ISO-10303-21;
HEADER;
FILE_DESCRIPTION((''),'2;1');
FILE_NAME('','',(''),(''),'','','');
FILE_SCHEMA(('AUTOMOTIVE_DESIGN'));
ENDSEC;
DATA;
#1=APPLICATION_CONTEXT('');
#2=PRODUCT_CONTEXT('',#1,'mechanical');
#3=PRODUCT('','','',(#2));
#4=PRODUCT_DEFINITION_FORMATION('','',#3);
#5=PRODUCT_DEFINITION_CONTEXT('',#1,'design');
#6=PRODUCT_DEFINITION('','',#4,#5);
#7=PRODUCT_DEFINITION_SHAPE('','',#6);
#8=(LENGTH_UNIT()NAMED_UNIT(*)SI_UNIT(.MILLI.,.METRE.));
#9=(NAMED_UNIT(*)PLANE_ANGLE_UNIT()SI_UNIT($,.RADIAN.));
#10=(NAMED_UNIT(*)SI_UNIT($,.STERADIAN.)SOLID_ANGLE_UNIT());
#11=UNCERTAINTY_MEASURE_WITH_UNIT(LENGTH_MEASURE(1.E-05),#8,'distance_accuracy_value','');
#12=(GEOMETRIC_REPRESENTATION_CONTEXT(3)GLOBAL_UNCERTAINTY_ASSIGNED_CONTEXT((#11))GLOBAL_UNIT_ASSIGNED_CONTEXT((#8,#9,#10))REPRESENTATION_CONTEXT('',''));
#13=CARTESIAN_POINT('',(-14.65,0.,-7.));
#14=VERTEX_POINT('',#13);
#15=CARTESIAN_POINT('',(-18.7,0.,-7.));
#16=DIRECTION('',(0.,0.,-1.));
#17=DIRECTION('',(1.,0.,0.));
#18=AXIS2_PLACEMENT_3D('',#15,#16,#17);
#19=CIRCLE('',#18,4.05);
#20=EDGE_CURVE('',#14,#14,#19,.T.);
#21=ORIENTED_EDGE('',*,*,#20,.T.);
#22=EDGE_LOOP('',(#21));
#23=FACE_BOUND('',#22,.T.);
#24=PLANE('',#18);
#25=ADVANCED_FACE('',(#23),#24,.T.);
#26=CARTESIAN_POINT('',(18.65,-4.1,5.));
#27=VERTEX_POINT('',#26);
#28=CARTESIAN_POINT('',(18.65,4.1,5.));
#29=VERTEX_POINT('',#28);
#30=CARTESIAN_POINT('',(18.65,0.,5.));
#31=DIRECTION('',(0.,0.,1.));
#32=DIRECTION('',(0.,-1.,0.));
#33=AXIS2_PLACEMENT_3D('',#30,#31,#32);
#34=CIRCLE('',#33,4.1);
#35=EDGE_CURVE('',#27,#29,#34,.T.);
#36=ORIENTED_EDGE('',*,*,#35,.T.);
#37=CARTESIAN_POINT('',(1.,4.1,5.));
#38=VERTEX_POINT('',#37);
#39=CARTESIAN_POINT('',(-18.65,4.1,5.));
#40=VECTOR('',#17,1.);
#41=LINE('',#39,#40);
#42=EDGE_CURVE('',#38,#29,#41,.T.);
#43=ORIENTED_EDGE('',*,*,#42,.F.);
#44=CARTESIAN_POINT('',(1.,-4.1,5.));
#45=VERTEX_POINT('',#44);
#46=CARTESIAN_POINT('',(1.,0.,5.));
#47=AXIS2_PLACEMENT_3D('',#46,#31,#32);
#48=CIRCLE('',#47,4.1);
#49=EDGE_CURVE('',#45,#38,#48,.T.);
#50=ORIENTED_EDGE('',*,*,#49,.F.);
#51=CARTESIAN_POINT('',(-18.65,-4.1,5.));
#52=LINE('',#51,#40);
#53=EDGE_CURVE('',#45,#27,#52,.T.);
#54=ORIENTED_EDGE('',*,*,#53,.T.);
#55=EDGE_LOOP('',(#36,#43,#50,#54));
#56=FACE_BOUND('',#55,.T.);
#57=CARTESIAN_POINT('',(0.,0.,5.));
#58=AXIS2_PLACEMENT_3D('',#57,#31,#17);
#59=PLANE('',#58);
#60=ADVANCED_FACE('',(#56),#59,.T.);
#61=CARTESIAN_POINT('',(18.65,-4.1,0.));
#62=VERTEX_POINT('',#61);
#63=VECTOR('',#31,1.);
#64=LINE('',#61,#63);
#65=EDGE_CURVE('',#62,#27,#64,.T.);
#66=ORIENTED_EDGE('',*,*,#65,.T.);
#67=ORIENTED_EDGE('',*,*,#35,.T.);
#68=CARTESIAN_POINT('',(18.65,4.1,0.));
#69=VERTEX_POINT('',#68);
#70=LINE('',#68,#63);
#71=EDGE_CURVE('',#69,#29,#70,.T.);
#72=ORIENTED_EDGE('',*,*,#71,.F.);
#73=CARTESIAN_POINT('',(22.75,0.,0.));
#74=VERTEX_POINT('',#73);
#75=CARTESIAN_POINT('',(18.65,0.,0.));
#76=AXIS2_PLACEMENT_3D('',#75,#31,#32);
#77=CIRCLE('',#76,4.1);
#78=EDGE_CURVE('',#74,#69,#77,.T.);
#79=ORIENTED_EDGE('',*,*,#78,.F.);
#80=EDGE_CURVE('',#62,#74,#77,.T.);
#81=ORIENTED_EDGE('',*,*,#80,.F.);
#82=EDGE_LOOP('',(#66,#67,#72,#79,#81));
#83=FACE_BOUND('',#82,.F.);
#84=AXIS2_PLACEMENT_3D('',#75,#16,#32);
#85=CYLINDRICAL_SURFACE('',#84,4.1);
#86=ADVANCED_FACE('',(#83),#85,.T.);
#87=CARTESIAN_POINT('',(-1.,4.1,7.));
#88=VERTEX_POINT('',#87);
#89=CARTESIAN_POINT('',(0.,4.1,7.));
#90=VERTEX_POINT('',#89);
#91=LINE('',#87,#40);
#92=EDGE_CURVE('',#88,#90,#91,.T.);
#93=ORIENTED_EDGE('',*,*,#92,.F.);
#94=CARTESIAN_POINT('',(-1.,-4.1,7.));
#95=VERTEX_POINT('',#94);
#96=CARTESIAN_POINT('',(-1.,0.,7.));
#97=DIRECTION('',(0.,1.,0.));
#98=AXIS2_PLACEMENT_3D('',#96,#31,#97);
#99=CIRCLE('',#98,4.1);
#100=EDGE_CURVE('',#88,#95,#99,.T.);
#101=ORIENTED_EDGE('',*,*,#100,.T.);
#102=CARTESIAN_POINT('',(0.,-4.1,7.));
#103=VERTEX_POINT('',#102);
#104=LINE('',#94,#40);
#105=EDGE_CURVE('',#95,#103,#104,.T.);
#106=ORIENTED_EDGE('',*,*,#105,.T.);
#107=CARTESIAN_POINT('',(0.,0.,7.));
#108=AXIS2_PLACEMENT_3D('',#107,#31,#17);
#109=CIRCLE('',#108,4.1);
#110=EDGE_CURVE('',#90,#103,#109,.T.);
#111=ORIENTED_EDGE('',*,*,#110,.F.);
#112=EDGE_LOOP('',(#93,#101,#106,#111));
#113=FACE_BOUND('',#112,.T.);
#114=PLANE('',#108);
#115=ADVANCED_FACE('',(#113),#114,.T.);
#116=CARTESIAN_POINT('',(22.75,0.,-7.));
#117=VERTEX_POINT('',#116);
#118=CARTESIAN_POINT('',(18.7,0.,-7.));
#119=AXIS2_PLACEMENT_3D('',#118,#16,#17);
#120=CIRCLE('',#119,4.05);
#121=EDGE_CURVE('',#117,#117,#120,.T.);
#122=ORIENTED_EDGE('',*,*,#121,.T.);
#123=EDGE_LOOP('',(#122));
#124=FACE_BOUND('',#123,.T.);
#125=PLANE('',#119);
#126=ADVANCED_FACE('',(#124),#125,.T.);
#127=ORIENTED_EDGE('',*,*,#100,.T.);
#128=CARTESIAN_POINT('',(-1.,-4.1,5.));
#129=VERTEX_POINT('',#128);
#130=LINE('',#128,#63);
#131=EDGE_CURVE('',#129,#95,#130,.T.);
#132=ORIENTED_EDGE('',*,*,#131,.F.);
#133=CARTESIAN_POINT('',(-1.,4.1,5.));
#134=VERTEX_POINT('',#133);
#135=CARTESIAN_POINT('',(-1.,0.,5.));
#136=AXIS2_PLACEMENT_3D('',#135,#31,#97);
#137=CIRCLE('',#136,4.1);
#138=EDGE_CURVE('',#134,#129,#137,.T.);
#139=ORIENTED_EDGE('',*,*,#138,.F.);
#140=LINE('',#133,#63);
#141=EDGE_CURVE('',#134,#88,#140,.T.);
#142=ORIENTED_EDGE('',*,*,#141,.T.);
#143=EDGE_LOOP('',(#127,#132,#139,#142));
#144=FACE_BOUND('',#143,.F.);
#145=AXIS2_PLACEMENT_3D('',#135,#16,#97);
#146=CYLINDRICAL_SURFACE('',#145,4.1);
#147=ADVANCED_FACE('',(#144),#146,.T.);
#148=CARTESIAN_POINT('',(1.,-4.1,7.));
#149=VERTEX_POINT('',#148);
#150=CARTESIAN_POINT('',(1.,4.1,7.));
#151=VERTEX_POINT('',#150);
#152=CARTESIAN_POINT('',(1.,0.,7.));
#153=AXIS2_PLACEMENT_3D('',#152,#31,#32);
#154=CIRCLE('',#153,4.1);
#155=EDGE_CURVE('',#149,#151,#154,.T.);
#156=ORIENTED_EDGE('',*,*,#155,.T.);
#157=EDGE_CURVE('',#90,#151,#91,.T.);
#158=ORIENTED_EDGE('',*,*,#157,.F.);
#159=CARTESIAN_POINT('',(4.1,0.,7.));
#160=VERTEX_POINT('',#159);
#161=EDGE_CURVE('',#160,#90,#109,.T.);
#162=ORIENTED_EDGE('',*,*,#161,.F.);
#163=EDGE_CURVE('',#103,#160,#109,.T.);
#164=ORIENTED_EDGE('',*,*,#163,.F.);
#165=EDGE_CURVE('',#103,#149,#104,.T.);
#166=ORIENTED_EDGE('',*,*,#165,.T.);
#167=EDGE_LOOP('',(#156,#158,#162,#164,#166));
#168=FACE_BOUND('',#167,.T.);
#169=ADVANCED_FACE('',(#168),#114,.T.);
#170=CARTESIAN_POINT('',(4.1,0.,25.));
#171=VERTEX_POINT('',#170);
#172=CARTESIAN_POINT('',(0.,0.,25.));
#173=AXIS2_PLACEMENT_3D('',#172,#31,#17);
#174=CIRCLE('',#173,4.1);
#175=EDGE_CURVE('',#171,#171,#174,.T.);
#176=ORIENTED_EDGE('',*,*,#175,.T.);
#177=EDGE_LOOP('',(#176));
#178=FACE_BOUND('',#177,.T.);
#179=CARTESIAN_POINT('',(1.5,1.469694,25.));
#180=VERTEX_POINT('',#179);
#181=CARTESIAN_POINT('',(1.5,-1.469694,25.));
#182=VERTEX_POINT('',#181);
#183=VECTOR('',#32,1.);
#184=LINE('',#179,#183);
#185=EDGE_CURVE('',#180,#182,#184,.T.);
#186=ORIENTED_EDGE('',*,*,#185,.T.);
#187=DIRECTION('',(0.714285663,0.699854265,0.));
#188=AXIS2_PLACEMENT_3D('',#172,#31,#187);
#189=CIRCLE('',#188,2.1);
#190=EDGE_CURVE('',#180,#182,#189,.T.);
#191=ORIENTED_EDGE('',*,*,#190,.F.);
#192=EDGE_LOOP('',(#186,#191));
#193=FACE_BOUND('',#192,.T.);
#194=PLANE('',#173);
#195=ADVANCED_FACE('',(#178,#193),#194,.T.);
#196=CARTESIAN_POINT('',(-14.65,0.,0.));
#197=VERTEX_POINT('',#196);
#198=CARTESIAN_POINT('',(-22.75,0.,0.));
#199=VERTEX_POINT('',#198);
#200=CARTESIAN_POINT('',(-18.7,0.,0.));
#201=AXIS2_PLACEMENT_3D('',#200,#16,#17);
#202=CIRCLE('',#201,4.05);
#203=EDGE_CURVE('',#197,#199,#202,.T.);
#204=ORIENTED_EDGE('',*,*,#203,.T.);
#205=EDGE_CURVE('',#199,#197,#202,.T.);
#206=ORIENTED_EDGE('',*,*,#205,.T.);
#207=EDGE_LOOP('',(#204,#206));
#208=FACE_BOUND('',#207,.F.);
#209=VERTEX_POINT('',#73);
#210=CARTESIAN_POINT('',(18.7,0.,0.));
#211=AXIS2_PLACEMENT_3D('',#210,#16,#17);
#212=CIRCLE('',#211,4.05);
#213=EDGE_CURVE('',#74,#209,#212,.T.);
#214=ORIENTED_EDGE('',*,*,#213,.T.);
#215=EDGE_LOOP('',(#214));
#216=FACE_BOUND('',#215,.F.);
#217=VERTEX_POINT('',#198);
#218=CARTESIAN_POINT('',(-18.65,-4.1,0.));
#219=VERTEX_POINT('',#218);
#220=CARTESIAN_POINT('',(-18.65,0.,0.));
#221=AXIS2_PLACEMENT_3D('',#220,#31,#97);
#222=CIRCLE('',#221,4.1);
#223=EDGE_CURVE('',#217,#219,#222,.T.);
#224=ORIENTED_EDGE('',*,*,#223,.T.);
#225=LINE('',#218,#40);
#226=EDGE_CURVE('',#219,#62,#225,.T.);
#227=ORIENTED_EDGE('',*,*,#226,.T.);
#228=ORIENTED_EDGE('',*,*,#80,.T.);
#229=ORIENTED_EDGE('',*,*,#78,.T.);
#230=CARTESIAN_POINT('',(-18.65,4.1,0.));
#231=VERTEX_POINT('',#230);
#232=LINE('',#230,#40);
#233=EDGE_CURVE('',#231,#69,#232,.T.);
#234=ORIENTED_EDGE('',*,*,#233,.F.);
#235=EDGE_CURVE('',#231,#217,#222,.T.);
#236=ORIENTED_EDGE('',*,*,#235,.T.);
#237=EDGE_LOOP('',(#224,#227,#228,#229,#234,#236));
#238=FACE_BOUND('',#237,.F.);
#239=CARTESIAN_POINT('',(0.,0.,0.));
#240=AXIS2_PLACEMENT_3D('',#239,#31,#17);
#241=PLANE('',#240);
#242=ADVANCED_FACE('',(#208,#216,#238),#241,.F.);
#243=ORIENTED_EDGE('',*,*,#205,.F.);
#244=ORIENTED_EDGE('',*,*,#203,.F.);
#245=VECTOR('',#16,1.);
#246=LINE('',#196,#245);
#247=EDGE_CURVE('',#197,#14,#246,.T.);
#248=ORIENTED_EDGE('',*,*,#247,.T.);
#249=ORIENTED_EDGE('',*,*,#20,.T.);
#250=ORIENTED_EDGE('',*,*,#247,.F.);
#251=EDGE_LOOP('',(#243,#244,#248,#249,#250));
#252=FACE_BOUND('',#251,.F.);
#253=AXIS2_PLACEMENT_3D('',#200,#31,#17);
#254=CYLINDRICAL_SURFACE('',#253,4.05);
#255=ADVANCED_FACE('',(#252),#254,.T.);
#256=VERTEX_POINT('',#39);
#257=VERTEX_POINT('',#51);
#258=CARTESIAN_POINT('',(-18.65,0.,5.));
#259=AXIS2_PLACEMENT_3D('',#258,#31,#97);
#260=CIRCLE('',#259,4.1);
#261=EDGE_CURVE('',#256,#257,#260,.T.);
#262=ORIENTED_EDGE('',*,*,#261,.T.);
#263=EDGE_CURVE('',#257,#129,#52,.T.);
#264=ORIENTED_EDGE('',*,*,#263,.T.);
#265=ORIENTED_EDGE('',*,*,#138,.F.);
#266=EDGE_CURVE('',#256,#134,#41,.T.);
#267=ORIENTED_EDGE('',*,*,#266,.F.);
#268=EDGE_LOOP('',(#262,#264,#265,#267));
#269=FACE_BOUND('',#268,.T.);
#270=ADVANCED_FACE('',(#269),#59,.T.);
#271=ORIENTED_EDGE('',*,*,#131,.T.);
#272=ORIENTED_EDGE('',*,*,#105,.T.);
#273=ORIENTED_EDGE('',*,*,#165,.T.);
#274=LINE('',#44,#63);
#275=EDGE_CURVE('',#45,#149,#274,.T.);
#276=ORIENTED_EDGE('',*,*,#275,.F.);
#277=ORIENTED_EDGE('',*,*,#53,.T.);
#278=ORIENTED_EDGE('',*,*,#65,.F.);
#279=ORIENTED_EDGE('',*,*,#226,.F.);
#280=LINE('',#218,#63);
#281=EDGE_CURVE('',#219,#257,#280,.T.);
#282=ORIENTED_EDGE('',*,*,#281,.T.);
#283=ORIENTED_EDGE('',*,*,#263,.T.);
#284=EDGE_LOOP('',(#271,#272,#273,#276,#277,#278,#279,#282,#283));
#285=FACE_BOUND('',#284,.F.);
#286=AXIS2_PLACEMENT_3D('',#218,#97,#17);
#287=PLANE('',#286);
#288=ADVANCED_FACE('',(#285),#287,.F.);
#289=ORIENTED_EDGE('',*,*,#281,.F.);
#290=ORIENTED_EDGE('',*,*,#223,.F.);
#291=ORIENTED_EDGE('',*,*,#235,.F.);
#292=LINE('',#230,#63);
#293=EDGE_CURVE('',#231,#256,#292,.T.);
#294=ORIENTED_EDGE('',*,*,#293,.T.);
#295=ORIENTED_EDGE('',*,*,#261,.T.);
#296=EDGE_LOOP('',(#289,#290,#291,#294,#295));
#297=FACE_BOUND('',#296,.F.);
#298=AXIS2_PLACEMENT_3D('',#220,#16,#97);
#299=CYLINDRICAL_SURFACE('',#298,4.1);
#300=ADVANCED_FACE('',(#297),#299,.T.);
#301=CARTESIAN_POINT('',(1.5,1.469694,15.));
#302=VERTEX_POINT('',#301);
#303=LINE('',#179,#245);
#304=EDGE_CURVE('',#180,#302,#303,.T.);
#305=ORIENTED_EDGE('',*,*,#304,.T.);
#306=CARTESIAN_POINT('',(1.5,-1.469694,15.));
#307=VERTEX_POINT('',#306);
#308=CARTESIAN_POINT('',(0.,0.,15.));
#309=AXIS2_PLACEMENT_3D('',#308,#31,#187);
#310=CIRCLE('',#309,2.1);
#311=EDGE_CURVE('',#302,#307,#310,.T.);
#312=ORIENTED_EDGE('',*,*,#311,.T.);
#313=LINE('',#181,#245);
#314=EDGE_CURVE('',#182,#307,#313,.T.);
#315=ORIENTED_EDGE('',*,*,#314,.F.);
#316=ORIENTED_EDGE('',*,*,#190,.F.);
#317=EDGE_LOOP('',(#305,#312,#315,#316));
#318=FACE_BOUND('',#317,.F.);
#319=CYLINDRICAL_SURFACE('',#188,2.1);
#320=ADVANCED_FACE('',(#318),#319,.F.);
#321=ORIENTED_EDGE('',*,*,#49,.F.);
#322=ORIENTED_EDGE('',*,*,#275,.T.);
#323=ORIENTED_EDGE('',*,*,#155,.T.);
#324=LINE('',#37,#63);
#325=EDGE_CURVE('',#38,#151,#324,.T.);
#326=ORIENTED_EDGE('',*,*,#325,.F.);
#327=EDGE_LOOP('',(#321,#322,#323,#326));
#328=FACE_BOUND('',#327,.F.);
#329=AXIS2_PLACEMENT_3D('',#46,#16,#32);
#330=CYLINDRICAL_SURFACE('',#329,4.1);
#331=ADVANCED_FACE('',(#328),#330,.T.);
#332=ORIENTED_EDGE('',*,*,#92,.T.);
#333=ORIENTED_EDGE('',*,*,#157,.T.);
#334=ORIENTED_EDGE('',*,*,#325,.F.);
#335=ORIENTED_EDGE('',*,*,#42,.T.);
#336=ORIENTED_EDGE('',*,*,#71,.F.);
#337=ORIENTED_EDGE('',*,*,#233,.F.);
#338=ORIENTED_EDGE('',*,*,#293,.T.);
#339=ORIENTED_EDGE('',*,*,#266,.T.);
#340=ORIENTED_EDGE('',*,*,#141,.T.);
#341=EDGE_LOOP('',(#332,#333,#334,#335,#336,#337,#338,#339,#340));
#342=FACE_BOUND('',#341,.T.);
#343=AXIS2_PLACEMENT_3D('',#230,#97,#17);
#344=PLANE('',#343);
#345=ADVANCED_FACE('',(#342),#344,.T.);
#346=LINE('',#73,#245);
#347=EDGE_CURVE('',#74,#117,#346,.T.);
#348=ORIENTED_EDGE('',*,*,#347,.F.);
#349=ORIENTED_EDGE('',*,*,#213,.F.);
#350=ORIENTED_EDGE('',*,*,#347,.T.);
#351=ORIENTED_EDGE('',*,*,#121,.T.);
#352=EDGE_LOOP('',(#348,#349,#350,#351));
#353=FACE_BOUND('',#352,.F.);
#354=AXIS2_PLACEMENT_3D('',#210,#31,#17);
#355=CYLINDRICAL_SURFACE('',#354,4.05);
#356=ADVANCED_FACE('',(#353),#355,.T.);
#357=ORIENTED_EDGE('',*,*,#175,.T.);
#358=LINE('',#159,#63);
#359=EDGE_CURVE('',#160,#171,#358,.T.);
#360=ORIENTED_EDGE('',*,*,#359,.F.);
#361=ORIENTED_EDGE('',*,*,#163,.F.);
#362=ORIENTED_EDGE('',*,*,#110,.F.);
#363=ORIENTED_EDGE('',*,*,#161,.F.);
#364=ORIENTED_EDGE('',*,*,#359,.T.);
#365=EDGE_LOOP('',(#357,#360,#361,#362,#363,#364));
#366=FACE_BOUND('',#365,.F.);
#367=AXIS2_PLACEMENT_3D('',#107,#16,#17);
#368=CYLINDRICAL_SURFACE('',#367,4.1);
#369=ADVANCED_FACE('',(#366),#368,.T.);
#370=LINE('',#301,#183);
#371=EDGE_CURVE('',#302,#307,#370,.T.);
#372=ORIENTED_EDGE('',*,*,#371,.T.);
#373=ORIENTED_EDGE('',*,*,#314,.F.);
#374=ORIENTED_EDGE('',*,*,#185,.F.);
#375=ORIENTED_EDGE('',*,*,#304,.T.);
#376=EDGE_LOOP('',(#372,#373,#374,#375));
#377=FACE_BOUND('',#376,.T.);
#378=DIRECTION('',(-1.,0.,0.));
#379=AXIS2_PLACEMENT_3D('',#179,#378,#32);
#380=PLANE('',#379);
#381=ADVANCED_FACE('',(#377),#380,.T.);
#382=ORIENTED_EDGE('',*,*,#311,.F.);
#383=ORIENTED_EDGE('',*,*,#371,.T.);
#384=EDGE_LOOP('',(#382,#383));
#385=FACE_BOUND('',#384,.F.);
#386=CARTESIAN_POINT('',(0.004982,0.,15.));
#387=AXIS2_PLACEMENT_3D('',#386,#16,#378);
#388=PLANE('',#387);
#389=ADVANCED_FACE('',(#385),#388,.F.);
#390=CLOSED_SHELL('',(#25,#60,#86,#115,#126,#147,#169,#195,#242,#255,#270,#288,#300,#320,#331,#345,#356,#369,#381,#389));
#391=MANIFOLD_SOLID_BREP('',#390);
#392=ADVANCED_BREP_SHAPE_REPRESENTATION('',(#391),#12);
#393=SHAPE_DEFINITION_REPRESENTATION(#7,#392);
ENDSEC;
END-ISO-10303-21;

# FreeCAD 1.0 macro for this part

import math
import FreeCAD as App
import Part
import Sketcher
from FreeCAD import Vector
Q = App.Units.Quantity

doc = App.newDocument("Part")
body = doc.addObject("PartDesign::Body", "Body")

# Sketch on XY plane
sketch1 = doc.addObject("Sketcher::SketchObject", "Sketch")
body.addObject(sketch1)
sketch1.AttachmentSupport = (doc.XY_Plane, [""])
sketch1.MapMode = "FlatFace"
sketch1.addGeometry([
    Part.ArcOfCircle(Part.Circle(Vector(-18.6, 0, 0), Vector(0, 0, 1), 4.1), math.radians(90), math.radians(270)),
    Part.LineSegment(Vector(-18.6, -4.1, 0), Vector(18.6, -4.1, 0)),
    Part.ArcOfCircle(Part.Circle(Vector(18.6, 0, 0), Vector(0, 0, 1), 4.1), math.radians(-90), math.radians(90)),
    Part.LineSegment(Vector(18.6, 4.1, 0), Vector(-18.6, 4.1, 0)),
], False)
sketch1.addConstraint([
    Sketcher.Constraint("Tangent", 0, 2, 1, 1),
    Sketcher.Constraint("Tangent", 1, 2, 2, 1),
    Sketcher.Constraint("Tangent", 2, 2, 3, 1),
    Sketcher.Constraint("Tangent", 3, 2, 0, 1),
    Sketcher.Constraint("Horizontal", 1),
    Sketcher.Constraint("Horizontal", 3),
    Sketcher.Constraint("Symmetric", 0, 3, 2, 3, -1, 1),
    Sketcher.Constraint("Radius", 0, Q("4.1 mm")),
    Sketcher.Constraint("DistanceX", 1, 1, 1, 2, Q("37.3 mm")),
])
pad1 = doc.addObject("PartDesign::Pad", "Pad")
body.addObject(pad1)
pad1.Profile = sketch1
pad1.Length = 5

# Sketch on XY plane
sketch2 = doc.addObject("Sketcher::SketchObject", "Sketch001")
body.addObject(sketch2)
sketch2.AttachmentSupport = (doc.XY_Plane, [""])
sketch2.MapMode = "FlatFace"
sketch2.AttachmentOffset = App.Placement(Vector(0, 0, 5), App.Rotation())
sketch2.addGeometry([
    Part.ArcOfCircle(Part.Circle(Vector(-1, 0, 0), Vector(0, 0, 1), 4.1), math.radians(90), math.radians(270)),
    Part.LineSegment(Vector(-1, -4.1, 0), Vector(1, -4.1, 0)),
    Part.ArcOfCircle(Part.Circle(Vector(1, 0, 0), Vector(0, 0, 1), 4.1), math.radians(-90), math.radians(90)),
    Part.LineSegment(Vector(1, 4.1, 0), Vector(-1, 4.1, 0)),
], False)
sketch2.addConstraint([
    Sketcher.Constraint("Tangent", 0, 2, 1, 1),
    Sketcher.Constraint("Tangent", 1, 2, 2, 1),
    Sketcher.Constraint("Tangent", 2, 2, 3, 1),
    Sketcher.Constraint("Tangent", 3, 2, 0, 1),
    Sketcher.Constraint("Horizontal", 1),
    Sketcher.Constraint("Horizontal", 3),
    Sketcher.Constraint("Symmetric", 0, 3, 2, 3, -1, 1),
    Sketcher.Constraint("Radius", 0, Q("4.1 mm")),
    Sketcher.Constraint("DistanceX", 1, 1, 1, 2, Q("2 mm")),
])
pad2 = doc.addObject("PartDesign::Pad", "Pad001")
body.addObject(pad2)
pad2.Profile = sketch2
pad2.Length = 2

# Sketch on XY plane
sketch3 = doc.addObject("Sketcher::SketchObject", "Sketch002")
body.addObject(sketch3)
sketch3.AttachmentSupport = (doc.XY_Plane, [""])
sketch3.MapMode = "FlatFace"
sketch3.addGeometry([
    Part.Circle(Vector(-18.7, 0, 0), Vector(0, 0, 1), 4),
    Part.Circle(Vector(18.7, 0, 0), Vector(0, 0, 1), 4),
], False)
sketch3.addConstraint([
    Sketcher.Constraint("Equal", 0, 1),
    Sketcher.Constraint("Symmetric", 0, 3, 1, 3, -1, 1),
    Sketcher.Constraint("PointOnObject", 0, 3, -1),
    Sketcher.Constraint("Diameter", 0, Q("8.1 mm")),
    Sketcher.Constraint("DistanceX", 0, 3, -1, 1, Q("18.7 mm")),
])
pad3 = doc.addObject("PartDesign::Pad", "Pad002")
body.addObject(pad3)
pad3.Profile = sketch3
pad3.Length = 7
pad3.Reversed = True

# Sketch on XY plane
sketch4 = doc.addObject("Sketcher::SketchObject", "Sketch003")
body.addObject(sketch4)
sketch4.AttachmentSupport = (doc.XY_Plane, [""])
sketch4.MapMode = "FlatFace"
sketch4.AttachmentOffset = App.Placement(Vector(0, 0, 7), App.Rotation())
sketch4.addGeometry(Part.Circle(Vector(0, 0, 0), Vector(0, 0, 1), 4.1), False)
sketch4.addConstraint([
    Sketcher.Constraint("Coincident", 0, 3, -1, 1),
    Sketcher.Constraint("Diameter", 0, Q("8.2 mm")),
])
pad4 = doc.addObject("PartDesign::Pad", "Pad003")
body.addObject(pad4)
pad4.Profile = sketch4
pad4.Length = 18

# Sketch on XY plane
sketch5 = doc.addObject("Sketcher::SketchObject", "Sketch004")
body.addObject(sketch5)
sketch5.AttachmentSupport = (doc.XY_Plane, [""])
sketch5.MapMode = "FlatFace"
sketch5.AttachmentOffset = App.Placement(Vector(0, 0, 25), App.Rotation())
sketch5.addGeometry([
    Part.LineSegment(Vector(1.5, -1.5, 0), Vector(1.5, 1.5, 0)),
    Part.ArcOfCircle(Part.Circle(Vector(0, 0, 0), Vector(0, 0, 1), 2.1), math.radians(44), math.radians(316)),
], False)
sketch5.addConstraint([
    Sketcher.Constraint("Coincident", 0, 1, 1, 2),
    Sketcher.Constraint("Coincident", 1, 1, 0, 2),
    Sketcher.Constraint("Vertical", 0),
    Sketcher.Constraint("Coincident", 1, 3, -1, 1),
    Sketcher.Constraint("Radius", 1, Q("2.1 mm")),
    Sketcher.Constraint("DistanceX", -1, 1, 0, 1, Q("1.5 mm")),
])
pocket1 = doc.addObject("PartDesign::Pocket", "Pocket")
body.addObject(pocket1)
pocket1.Profile = sketch5
pocket1.Length = 10

doc.recompute()
